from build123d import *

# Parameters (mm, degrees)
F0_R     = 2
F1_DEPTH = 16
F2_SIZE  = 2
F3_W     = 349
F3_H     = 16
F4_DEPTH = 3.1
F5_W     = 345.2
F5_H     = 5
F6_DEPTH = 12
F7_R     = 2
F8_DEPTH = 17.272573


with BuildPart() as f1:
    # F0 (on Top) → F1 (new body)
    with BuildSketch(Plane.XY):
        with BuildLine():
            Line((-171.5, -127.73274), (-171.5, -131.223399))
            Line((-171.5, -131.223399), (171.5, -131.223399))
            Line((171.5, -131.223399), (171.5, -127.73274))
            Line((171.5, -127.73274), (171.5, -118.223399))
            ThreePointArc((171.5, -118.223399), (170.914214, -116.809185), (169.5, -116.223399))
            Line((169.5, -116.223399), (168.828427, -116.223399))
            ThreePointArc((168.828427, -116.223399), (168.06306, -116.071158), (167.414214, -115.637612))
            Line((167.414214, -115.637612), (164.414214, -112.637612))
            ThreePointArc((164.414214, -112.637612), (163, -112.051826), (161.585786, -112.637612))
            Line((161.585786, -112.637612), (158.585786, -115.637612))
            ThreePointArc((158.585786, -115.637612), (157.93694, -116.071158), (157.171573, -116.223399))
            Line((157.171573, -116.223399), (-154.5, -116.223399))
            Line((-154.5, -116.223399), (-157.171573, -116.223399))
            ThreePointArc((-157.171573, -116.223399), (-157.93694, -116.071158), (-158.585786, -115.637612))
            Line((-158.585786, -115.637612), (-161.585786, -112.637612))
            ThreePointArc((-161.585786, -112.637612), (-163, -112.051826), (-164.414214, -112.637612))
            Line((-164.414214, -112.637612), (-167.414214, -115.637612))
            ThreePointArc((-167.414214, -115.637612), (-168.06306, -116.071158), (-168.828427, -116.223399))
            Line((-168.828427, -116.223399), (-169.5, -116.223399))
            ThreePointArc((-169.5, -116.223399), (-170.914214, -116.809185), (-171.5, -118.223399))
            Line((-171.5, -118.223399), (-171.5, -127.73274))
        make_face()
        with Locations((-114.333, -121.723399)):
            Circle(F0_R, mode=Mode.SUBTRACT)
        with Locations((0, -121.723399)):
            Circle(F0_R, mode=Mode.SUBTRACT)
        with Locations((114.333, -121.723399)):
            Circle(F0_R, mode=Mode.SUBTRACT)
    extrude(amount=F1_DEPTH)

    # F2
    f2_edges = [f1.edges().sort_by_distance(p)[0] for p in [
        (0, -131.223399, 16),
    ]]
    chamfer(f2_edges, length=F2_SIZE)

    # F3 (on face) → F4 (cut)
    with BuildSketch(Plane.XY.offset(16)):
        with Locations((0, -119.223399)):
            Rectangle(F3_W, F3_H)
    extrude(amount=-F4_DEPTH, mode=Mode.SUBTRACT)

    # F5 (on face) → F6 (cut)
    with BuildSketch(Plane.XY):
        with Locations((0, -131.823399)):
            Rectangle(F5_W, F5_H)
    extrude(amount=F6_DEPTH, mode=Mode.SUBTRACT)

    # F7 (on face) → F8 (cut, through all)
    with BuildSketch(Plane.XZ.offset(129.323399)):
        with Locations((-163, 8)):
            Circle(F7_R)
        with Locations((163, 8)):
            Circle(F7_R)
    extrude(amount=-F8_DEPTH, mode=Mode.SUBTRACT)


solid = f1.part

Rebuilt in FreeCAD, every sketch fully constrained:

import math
import FreeCAD as App
import Part
import Sketcher


def edges_at(feature, points):
    """Names of the edges that pass closest to the given points."""
    edges = feature.Shape.Edges
    near = lambda p: min(range(len(edges)), key=lambda i: edges[i].distToShape(Part.Vertex(*p))[0])
    return sorted({f"Edge{near(p) + 1}" for p in points})


def add_polygon(sketch, points):
    """Adds a closed chain of lines whose ends are joined by coincident constraints."""
    first, n = sketch.GeometryCount, len(points)
    for a, b in zip(points, points[1:] + points[:1]):
        sketch.addGeometry(Part.LineSegment(App.Vector(*a, 0), App.Vector(*b, 0)), False)
    for i in range(n):
        sketch.addConstraint(Sketcher.Constraint("Coincident", first + i, 2, first + (i + 1) % n, 1))

doc = App.newDocument("Part")
body = doc.addObject("PartDesign::Body", "Body")

# Sketch on XY plane
sketch1 = doc.addObject("Sketcher::SketchObject", "Sketch")
body.addObject(sketch1)
sketch1.AttachmentSupport = (doc.XY_Plane, [""])
sketch1.MapMode = "FlatFace"
sketch1.addGeometry([
    Part.LineSegment(App.Vector(-171.5, -131.2, 0), App.Vector(171.5, -131.2, 0)),  # 0
    Part.LineSegment(App.Vector(171.5, -131.2, 0), App.Vector(171.5, -118.2, 0)),  # 1
    Part.ArcOfCircle(Part.Circle(App.Vector(169.5, -118.2, 0), App.Vector(0, 0, 1), 2), math.radians(0), math.radians(90)),  # 2
    Part.LineSegment(App.Vector(169.5, -116.2, 0), App.Vector(168.8, -116.2, 0)),  # 3
    Part.ArcOfCircle(Part.Circle(App.Vector(168.8, -114.2, 0), App.Vector(0, 0, 1), 2), math.radians(-135), math.radians(-90)),  # 4
    Part.LineSegment(App.Vector(167.4, -115.6, 0), App.Vector(164.4, -112.6, 0)),  # 5
    Part.ArcOfCircle(Part.Circle(App.Vector(163, -114.1, 0), App.Vector(0, 0, 1), 2), math.radians(45), math.radians(135)),  # 6
    Part.LineSegment(App.Vector(161.6, -112.6, 0), App.Vector(158.6, -115.6, 0)),  # 7
    Part.ArcOfCircle(Part.Circle(App.Vector(157.2, -114.2, 0), App.Vector(0, 0, 1), 2), math.radians(-90), math.radians(-45)),  # 8
    Part.LineSegment(App.Vector(157.2, -116.2, 0), App.Vector(-157.2, -116.2, 0)),  # 9
    Part.ArcOfCircle(Part.Circle(App.Vector(-157.2, -114.2, 0), App.Vector(0, 0, 1), 2), math.radians(-135), math.radians(-90)),  # 10
    Part.LineSegment(App.Vector(-158.6, -115.6, 0), App.Vector(-161.6, -112.6, 0)),  # 11
    Part.ArcOfCircle(Part.Circle(App.Vector(-163, -114.1, 0), App.Vector(0, 0, 1), 2), math.radians(45), math.radians(135)),  # 12
    Part.LineSegment(App.Vector(-164.4, -112.6, 0), App.Vector(-167.4, -115.6, 0)),  # 13
    Part.ArcOfCircle(Part.Circle(App.Vector(-168.8, -114.2, 0), App.Vector(0, 0, 1), 2), math.radians(-90), math.radians(-45)),  # 14
    Part.LineSegment(App.Vector(-168.8, -116.2, 0), App.Vector(-169.5, -116.2, 0)),  # 15
    Part.ArcOfCircle(Part.Circle(App.Vector(-169.5, -118.2, 0), App.Vector(0, 0, 1), 2), math.radians(90), math.radians(180)),  # 16
    Part.LineSegment(App.Vector(-171.5, -118.2, 0), App.Vector(-171.5, -131.2, 0)),  # 17
    Part.Circle(App.Vector(-114.3, -121.7, 0), App.Vector(0, 0, 1), 2),  # 18
    Part.Circle(App.Vector(0, -121.7, 0), App.Vector(0, 0, 1), 2),  # 19
    Part.Circle(App.Vector(114.3, -121.7, 0), App.Vector(0, 0, 1), 2),  # 20
], False)
sketch1.addConstraint([
    Sketcher.Constraint("Coincident", 0, 2, 1, 1),
    Sketcher.Constraint("Tangent", 1, 2, 2, 1),
    Sketcher.Constraint("Tangent", 2, 2, 3, 1),
    Sketcher.Constraint("Tangent", 3, 2, 4, 2),
    Sketcher.Constraint("Tangent", 4, 1, 5, 1),
    Sketcher.Constraint("Tangent", 5, 2, 6, 1),
    Sketcher.Constraint("Tangent", 6, 2, 7, 1),
    Sketcher.Constraint("Tangent", 7, 2, 8, 2),
    Sketcher.Constraint("Tangent", 8, 1, 9, 1),
    Sketcher.Constraint("Tangent", 9, 2, 10, 2),
    Sketcher.Constraint("Tangent", 10, 1, 11, 1),
    Sketcher.Constraint("Tangent", 11, 2, 12, 1),
    Sketcher.Constraint("Tangent", 12, 2, 13, 1),
    Sketcher.Constraint("Tangent", 13, 2, 14, 2),
    Sketcher.Constraint("Tangent", 14, 1, 15, 1),
    Sketcher.Constraint("Tangent", 15, 2, 16, 1),
    Sketcher.Constraint("Tangent", 16, 2, 17, 1),
    Sketcher.Constraint("Coincident", 17, 2, 0, 1),
    Sketcher.Constraint("Horizontal", 0),
    Sketcher.Constraint("Vertical", 1),
    Sketcher.Constraint("Horizontal", 3),
    Sketcher.Constraint("Horizontal", 9),
    Sketcher.Constraint("Horizontal", 15),
    Sketcher.Constraint("Vertical", 17),
    Sketcher.Constraint("Equal", 4, 8),
    Sketcher.Constraint("Equal", 8, 10),
    Sketcher.Constraint("Equal", 6, 12),
    Sketcher.Constraint("Equal", 10, 14),
    Sketcher.Constraint("Equal", 2, 16),
    Sketcher.Constraint("Equal", 16, 18),
    Sketcher.Constraint("Equal", 18, 19),
    Sketcher.Constraint("Equal", 19, 20),
    Sketcher.Constraint("Symmetric", 6, 3, 12, 3, -2),
    Sketcher.Constraint("Symmetric", 4, 3, 14, 3, -2),
    Sketcher.Constraint("Symmetric", 18, 3, 20, 3, -2),
    Sketcher.Constraint("PointOnObject", 19, 3, -2),
    Sketcher.Constraint("Perpendicular", 5, 7),
    Sketcher.Constraint("Perpendicular", 7, 11),
    Sketcher.Constraint("Perpendicular", 11, 13),
    Sketcher.Constraint("Horizontal", 4, 3, 8, 3),
    Sketcher.Constraint("Horizontal", 18, 3, 19, 3),
    Sketcher.Constraint("Equal", 3, 15),
    Sketcher.Constraint("Diameter", 18, 4.0),
    Sketcher.Constraint("DistanceX", 0, 1, 0, 2, 343.0),
    Sketcher.Constraint("DistanceY", 1, 1, 1, 2, 13.0),
    Sketcher.Constraint("DistanceX", -1, 1, 6, 3, 163.0),
    Sketcher.Constraint("DistanceX", 5, 2, 4, 1, 3.0),
    Sketcher.Constraint("DistanceY", 18, 3, 16, 3, 3.500001),
    Sketcher.Constraint("DistanceX", 18, 3, -1, 1, 114.333),
    Sketcher.Constraint("Radius", 4, 1.999995),
    Sketcher.Constraint("Radius", 6, 2.000002),
    Sketcher.Constraint("DistanceY", 18, 3, -1, 1, 121.723399),
])
pad1 = doc.addObject("PartDesign::Pad", "Pad")
body.addObject(pad1)
pad1.Profile = sketch1
pad1.Length = 16
doc.recompute()

chamfer = doc.addObject("PartDesign::Chamfer", "Chamfer")
body.addObject(chamfer)
chamfer.Base = (pad1, edges_at(pad1, [(0, -131.223, 16)]))
chamfer.Size = 2

# Sketch on XY plane
sketch2 = doc.addObject("Sketcher::SketchObject", "Sketch001")
body.addObject(sketch2)
sketch2.AttachmentSupport = (doc.XY_Plane, [""])
sketch2.MapMode = "FlatFace"
sketch2.AttachmentOffset = App.Placement(App.Vector(0, 0, 16), App.Rotation())
add_polygon(sketch2, [(-174, -111), (-174, -127), (174, -127), (174, -111)])  # lines 0-3
sketch2.addConstraint([
    Sketcher.Constraint("Vertical", 0),
    Sketcher.Constraint("Horizontal", 1),
    Sketcher.Constraint("Vertical", 2),
    Sketcher.Constraint("Horizontal", 3),
    Sketcher.Constraint("DistanceX", 1, 1, 1, 2, 349.0),
    Sketcher.Constraint("DistanceY", 0, 2, 0, 1, 16.0),
    Sketcher.Constraint("DistanceX", 0, 2, -1, 1, 174.5),
    Sketcher.Constraint("DistanceY", 0, 2, -1, 1, 127.223399),
])
pocket1 = doc.addObject("PartDesign::Pocket", "Pocket")
body.addObject(pocket1)
pocket1.Profile = sketch2
pocket1.Length = 3.1

# Sketch on XY plane
sketch3 = doc.addObject("Sketcher::SketchObject", "Sketch002")
body.addObject(sketch3)
sketch3.AttachmentSupport = (doc.XY_Plane, [""])
sketch3.MapMode = "FlatFace"
add_polygon(sketch3, [(-173, -129), (-173, -134), (173, -134), (173, -129)])  # lines 0-3
sketch3.addConstraint([
    Sketcher.Constraint("Vertical", 0),
    Sketcher.Constraint("Horizontal", 1),
    Sketcher.Constraint("Vertical", 2),
    Sketcher.Constraint("Horizontal", 3),
    Sketcher.Constraint("DistanceY", 0, 2, 0, 1, 5.0),
    Sketcher.Constraint("DistanceX", 1, 1, 1, 2, 345.2),
    Sketcher.Constraint("DistanceX", 0, 2, -1, 1, 172.6),
    Sketcher.Constraint("DistanceY", 0, 2, -1, 1, 134.323399),
])
pocket2 = doc.addObject("PartDesign::Pocket", "Pocket001")
body.addObject(pocket2)
pocket2.Profile = sketch3
pocket2.Length = 12
pocket2.Reversed = True

# Sketch on XZ plane
sketch4 = doc.addObject("Sketcher::SketchObject", "Sketch003")
body.addObject(sketch4)
sketch4.AttachmentSupport = (doc.XZ_Plane, [""])
sketch4.MapMode = "FlatFace"
sketch4.AttachmentOffset = App.Placement(App.Vector(0, 0, 129.323399), App.Rotation())
sketch4.addGeometry([
    Part.Circle(App.Vector(-163, 8, 0), App.Vector(0, 0, 1), 2),
    Part.Circle(App.Vector(163, 8, 0), App.Vector(0, 0, 1), 2),
], False)
sketch4.addConstraint([
    Sketcher.Constraint("Equal", 0, 1),
    Sketcher.Constraint("Symmetric", 0, 3, 1, 3, -2),
    Sketcher.Constraint("Diameter", 0, 4.0),
    Sketcher.Constraint("DistanceX", 0, 3, -1, 1, 163.0),
    Sketcher.Constraint("DistanceY", -1, 1, 0, 3, 8.0),
])
pocket3 = doc.addObject("PartDesign::Pocket", "Pocket002")
body.addObject(pocket3)
pocket3.Profile = sketch4
pocket3.Type = "ThroughAll"

doc.recompute()
